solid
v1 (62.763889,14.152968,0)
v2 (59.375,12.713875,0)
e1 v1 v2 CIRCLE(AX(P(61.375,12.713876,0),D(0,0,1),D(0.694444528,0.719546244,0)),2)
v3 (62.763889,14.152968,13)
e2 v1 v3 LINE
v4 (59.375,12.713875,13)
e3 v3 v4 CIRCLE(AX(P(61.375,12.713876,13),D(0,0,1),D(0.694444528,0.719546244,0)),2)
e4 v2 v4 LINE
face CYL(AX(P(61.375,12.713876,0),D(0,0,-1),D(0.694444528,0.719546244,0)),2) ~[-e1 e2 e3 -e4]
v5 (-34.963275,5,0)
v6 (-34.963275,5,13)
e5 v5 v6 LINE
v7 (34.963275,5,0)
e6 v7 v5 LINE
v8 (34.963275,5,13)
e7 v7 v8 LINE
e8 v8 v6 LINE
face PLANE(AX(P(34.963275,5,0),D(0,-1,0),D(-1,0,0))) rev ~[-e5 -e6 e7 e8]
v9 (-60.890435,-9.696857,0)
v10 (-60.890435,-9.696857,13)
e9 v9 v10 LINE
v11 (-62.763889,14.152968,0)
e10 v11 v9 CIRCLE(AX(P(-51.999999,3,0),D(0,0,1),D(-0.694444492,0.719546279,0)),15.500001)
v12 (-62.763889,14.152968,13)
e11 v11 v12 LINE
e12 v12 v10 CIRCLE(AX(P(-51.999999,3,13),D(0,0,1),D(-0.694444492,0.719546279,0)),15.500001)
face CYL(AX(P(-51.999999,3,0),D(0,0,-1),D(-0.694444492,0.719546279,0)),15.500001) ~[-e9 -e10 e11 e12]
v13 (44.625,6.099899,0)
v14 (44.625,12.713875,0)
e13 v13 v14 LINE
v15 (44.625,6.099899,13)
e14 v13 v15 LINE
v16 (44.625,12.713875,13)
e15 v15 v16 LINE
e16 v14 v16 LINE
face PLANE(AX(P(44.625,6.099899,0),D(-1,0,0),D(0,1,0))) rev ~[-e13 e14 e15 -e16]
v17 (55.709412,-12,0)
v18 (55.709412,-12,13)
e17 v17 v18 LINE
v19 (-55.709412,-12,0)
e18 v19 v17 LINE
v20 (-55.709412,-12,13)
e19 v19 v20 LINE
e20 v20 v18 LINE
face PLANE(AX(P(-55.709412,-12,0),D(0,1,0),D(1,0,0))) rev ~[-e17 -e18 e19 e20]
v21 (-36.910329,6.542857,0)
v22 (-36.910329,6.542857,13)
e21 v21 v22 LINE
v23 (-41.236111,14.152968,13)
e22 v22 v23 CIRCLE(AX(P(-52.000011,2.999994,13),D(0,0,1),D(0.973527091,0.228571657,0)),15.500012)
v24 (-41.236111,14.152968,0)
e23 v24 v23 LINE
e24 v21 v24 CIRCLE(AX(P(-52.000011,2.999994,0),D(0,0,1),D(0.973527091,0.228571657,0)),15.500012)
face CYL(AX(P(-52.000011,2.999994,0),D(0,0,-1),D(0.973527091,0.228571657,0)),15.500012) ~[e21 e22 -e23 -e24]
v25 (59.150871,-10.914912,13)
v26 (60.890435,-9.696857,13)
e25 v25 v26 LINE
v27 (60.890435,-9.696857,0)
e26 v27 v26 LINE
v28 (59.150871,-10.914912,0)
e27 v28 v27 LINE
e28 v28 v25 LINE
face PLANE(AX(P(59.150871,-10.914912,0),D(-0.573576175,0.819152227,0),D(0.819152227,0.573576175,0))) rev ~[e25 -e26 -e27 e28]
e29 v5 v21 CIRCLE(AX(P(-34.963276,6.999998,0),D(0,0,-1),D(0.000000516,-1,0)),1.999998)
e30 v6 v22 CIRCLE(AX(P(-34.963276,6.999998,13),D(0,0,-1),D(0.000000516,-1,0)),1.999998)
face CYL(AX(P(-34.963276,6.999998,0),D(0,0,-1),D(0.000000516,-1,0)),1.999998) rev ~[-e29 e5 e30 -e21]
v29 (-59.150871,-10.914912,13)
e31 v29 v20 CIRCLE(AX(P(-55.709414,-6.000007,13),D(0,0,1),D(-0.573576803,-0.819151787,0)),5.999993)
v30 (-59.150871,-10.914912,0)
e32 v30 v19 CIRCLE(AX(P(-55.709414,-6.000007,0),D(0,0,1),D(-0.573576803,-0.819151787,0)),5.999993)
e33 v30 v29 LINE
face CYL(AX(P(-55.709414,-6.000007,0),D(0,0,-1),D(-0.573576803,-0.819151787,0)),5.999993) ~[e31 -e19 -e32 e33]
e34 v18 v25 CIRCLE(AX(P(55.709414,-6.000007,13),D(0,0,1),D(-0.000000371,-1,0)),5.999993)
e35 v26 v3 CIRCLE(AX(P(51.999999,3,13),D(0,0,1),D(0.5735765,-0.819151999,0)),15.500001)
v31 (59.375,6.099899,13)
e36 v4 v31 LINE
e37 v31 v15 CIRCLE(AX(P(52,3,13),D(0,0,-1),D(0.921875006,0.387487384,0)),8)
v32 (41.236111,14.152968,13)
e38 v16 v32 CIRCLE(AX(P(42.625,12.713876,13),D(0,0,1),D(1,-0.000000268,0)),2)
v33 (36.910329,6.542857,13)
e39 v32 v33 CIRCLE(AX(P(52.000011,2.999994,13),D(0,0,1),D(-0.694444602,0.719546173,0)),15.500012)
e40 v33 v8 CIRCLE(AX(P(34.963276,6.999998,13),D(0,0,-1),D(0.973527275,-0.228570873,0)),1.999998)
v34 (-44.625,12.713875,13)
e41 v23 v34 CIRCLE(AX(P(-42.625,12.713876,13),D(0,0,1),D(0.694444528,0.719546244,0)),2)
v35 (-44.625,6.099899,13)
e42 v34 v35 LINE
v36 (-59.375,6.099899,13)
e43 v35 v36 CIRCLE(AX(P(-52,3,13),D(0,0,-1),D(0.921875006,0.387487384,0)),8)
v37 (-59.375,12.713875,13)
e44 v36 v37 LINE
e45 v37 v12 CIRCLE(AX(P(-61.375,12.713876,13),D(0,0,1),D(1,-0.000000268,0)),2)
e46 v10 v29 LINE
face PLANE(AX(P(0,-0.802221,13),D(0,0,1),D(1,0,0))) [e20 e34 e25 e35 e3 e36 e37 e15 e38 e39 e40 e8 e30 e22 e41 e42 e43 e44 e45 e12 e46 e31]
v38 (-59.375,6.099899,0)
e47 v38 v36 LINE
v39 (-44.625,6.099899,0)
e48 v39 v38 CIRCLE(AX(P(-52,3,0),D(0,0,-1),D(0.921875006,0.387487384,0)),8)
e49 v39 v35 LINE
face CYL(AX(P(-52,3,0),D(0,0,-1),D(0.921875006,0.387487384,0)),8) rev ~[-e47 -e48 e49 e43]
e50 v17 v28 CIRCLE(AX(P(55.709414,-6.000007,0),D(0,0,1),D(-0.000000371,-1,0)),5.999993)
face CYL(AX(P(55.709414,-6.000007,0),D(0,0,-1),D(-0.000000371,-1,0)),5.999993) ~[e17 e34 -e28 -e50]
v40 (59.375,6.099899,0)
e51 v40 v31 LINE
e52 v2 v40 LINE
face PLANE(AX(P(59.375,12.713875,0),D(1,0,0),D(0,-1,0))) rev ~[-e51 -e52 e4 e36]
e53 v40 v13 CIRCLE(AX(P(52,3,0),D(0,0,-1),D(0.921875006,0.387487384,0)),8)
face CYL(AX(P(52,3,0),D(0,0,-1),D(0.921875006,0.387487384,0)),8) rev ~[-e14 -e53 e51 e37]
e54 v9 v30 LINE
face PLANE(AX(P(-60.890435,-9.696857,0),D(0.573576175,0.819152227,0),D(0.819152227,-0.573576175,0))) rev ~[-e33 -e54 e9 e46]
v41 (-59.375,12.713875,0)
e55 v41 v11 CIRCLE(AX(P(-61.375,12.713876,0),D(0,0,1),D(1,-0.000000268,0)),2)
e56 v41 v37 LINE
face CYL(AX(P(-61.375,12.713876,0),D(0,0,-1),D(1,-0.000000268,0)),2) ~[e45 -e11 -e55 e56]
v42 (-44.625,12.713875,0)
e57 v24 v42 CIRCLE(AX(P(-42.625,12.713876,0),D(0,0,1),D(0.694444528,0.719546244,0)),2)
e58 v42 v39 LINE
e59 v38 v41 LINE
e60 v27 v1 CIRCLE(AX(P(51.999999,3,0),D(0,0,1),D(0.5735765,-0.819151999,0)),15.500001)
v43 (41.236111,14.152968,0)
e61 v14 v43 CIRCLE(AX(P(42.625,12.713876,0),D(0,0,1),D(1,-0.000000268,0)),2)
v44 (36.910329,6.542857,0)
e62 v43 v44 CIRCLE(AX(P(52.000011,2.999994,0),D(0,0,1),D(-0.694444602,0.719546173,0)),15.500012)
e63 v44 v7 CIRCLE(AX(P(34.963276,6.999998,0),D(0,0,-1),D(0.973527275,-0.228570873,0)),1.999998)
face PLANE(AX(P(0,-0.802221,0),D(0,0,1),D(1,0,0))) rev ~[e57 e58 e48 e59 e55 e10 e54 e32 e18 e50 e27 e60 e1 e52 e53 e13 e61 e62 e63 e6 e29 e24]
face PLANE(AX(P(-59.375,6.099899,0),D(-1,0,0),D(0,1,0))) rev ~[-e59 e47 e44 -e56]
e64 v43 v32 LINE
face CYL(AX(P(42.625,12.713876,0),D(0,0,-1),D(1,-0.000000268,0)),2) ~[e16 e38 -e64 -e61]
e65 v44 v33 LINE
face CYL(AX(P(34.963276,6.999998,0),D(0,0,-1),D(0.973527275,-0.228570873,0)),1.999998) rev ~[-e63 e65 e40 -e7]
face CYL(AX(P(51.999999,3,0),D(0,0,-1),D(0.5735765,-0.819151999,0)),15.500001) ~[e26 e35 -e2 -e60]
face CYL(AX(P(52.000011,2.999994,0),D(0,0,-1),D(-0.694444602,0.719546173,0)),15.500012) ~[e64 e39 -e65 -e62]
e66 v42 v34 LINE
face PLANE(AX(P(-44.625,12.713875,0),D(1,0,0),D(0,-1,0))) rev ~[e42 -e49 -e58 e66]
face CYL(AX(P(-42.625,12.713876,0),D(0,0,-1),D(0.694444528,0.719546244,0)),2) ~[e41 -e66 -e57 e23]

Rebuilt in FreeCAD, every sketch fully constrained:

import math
import FreeCAD as App
import Part
import Sketcher
from FreeCAD import Vector
Q = App.Units.Quantity

doc = App.newDocument("Part")
body = doc.addObject("PartDesign::Body", "Body")

sketch1 = doc.addObject("Sketcher::SketchObject", "Sketch")
body.addObject(sketch1)
sketch1.AttachmentSupport = (doc.XY_Plane, [""])
sketch1.MapMode = "FlatFace"
sketch1.addGeometry(Part.ArcOfCircle(Part.Circle(Vector(-61.4, 12.7, 0), Vector(0, 0, 1), 2), math.radians(0), math.radians(134)), False)
sketch1.addGeometry(Part.ArcOfCircle(Part.Circle(Vector(-52, 3, 0), Vector(0, 0, 1), 15.5), math.radians(134), math.radians(235)), False)
sketch1.addGeometry(Part.LineSegment(Vector(-60.9, -9.7, 0), Vector(-59.2, -10.9, 0)), False)
sketch1.addGeometry(Part.ArcOfCircle(Part.Circle(Vector(-55.7, -6, 0), Vector(0, 0, 1), 6), math.radians(-125), math.radians(-90)), False)
sketch1.addGeometry(Part.LineSegment(Vector(-55.7, -12, 0), Vector(55.7, -12, 0)), False)
sketch1.addGeometry(Part.ArcOfCircle(Part.Circle(Vector(55.7, -6, 0), Vector(0, 0, 1), 6), math.radians(-90), math.radians(-55)), False)
sketch1.addGeometry(Part.LineSegment(Vector(59.2, -10.9, 0), Vector(60.9, -9.7, 0)), False)
sketch1.addGeometry(Part.ArcOfCircle(Part.Circle(Vector(52, 3, 0), Vector(0, 0, 1), 15.5), math.radians(-55), math.radians(46)), False)
sketch1.addGeometry(Part.ArcOfCircle(Part.Circle(Vector(61.4, 12.7, 0), Vector(0, 0, 1), 2), math.radians(46), math.radians(180)), False)
sketch1.addGeometry(Part.LineSegment(Vector(59.4, 12.7, 0), Vector(59.4, 6.1, 0)), False)
sketch1.addGeometry(Part.ArcOfCircle(Part.Circle(Vector(52, 3, 0), Vector(0, 0, 1), 8), math.radians(157), math.radians(383)), False)
sketch1.addGeometry(Part.LineSegment(Vector(44.6, 6.1, 0), Vector(44.6, 12.7, 0)), False)
sketch1.addGeometry(Part.ArcOfCircle(Part.Circle(Vector(42.6, 12.7, 0), Vector(0, 0, 1), 2), math.radians(0), math.radians(134)), False)
sketch1.addGeometry(Part.ArcOfCircle(Part.Circle(Vector(52, 3, 0), Vector(0, 0, 1), 15.5), math.radians(134), math.radians(167)), False)
sketch1.addGeometry(Part.ArcOfCircle(Part.Circle(Vector(35, 7, 0), Vector(0, 0, 1), 2), math.radians(-90), math.radians(-13)), False)
sketch1.addGeometry(Part.LineSegment(Vector(35, 5, 0), Vector(-35, 5, 0)), False)
sketch1.addGeometry(Part.ArcOfCircle(Part.Circle(Vector(-35, 7, 0), Vector(0, 0, 1), 2), math.radians(-167), math.radians(-90)), False)
sketch1.addGeometry(Part.ArcOfCircle(Part.Circle(Vector(-52, 3, 0), Vector(0, 0, 1), 15.5), math.radians(13), math.radians(46)), False)
sketch1.addGeometry(Part.ArcOfCircle(Part.Circle(Vector(-42.6, 12.7, 0), Vector(0, 0, 1), 2), math.radians(46), math.radians(180)), False)
sketch1.addGeometry(Part.LineSegment(Vector(-44.6, 12.7, 0), Vector(-44.6, 6.1, 0)), False)
sketch1.addGeometry(Part.ArcOfCircle(Part.Circle(Vector(-52, 3, 0), Vector(0, 0, 1), 8), math.radians(157), math.radians(383)), False)
sketch1.addGeometry(Part.LineSegment(Vector(-59.4, 6.1, 0), Vector(-59.4, 12.7, 0)), False)
sketch1.addConstraint(Sketcher.Constraint("Tangent", 0, 2, 1, 1))
sketch1.addConstraint(Sketcher.Constraint("Tangent", 1, 2, 2, 1))
sketch1.addConstraint(Sketcher.Constraint("Tangent", 2, 2, 3, 1))
sketch1.addConstraint(Sketcher.Constraint("Tangent", 3, 2, 4, 1))
sketch1.addConstraint(Sketcher.Constraint("Tangent", 4, 2, 5, 1))
sketch1.addConstraint(Sketcher.Constraint("Tangent", 5, 2, 6, 1))
sketch1.addConstraint(Sketcher.Constraint("Tangent", 6, 2, 7, 1))
sketch1.addConstraint(Sketcher.Constraint("Tangent", 7, 2, 8, 1))
sketch1.addConstraint(Sketcher.Constraint("Tangent", 8, 2, 9, 1))
sketch1.addConstraint(Sketcher.Constraint("Coincident", 9, 2, 10, 2))
sketch1.addConstraint(Sketcher.Constraint("Coincident", 10, 1, 11, 1))
sketch1.addConstraint(Sketcher.Constraint("Tangent", 11, 2, 12, 1))
sketch1.addConstraint(Sketcher.Constraint("Tangent", 12, 2, 13, 1))
sketch1.addConstraint(Sketcher.Constraint("Tangent", 13, 2, 14, 2))
sketch1.addConstraint(Sketcher.Constraint("Tangent", 14, 1, 15, 1))
sketch1.addConstraint(Sketcher.Constraint("Tangent", 15, 2, 16, 2))
sketch1.addConstraint(Sketcher.Constraint("Tangent", 16, 1, 17, 1))
sketch1.addConstraint(Sketcher.Constraint("Tangent", 17, 2, 18, 1))
sketch1.addConstraint(Sketcher.Constraint("Tangent", 18, 2, 19, 1))
sketch1.addConstraint(Sketcher.Constraint("Coincident", 19, 2, 20, 2))
sketch1.addConstraint(Sketcher.Constraint("Coincident", 20, 1, 21, 1))
sketch1.addConstraint(Sketcher.Constraint("Tangent", 21, 2, 0, 1))
sketch1.addConstraint(Sketcher.Constraint("Horizontal", 4))
sketch1.addConstraint(Sketcher.Constraint("Vertical", 9))
sketch1.addConstraint(Sketcher.Constraint("Vertical", 11))
sketch1.addConstraint(Sketcher.Constraint("Horizontal", 15))
sketch1.addConstraint(Sketcher.Constraint("Vertical", 19))
sketch1.addConstraint(Sketcher.Constraint("Vertical", 21))
sketch1.addConstraint(Sketcher.Constraint("Coincident", 10, 3, 7, 3))
sketch1.addConstraint(Sketcher.Constraint("Coincident", 20, 3, 1, 3))
sketch1.addConstraint(Sketcher.Constraint("Equal", 3, 5))
sketch1.addConstraint(Sketcher.Constraint("Equal", 1, 7))
sketch1.addConstraint(Sketcher.Constraint("Equal", 0, 8))
sketch1.addConstraint(Sketcher.Constraint("Equal", 8, 12))
sketch1.addConstraint(Sketcher.Constraint("Equal", 12, 14))
sketch1.addConstraint(Sketcher.Constraint("Equal", 14, 16))
sketch1.addConstraint(Sketcher.Constraint("Equal", 13, 17))
sketch1.addConstraint(Sketcher.Constraint("Equal", 16, 18))
sketch1.addConstraint(Sketcher.Constraint("Equal", 10, 20))
sketch1.addConstraint(Sketcher.Constraint("Symmetric", 1, 3, 7, 3, -2))
sketch1.addConstraint(Sketcher.Constraint("Symmetric", 13, 3, 17, 3, -2))
sketch1.addConstraint(Sketcher.Constraint("Horizontal", 0, 3, 8, 3))
sketch1.addConstraint(Sketcher.Constraint("Horizontal", 8, 3, 12, 3))
sketch1.addConstraint(Sketcher.Constraint("Horizontal", 12, 3, 18, 3))
sketch1.addConstraint(Sketcher.Constraint("Horizontal", 2, 2, 5, 2))
sketch1.addConstraint(Sketcher.Constraint("Horizontal", 9, 2, 10, 1))
sketch1.addConstraint(Sketcher.Constraint("Horizontal", 7, 2, 12, 2))
sketch1.addConstraint(Sketcher.Constraint("Radius", 0, Q("2 mm")))
sketch1.addConstraint(Sketcher.Constraint("Radius", 10, Q("8 mm")))
sketch1.addConstraint(Sketcher.Constraint("Radius", 1, Q("15.500001 mm")))
sketch1.addConstraint(Sketcher.Constraint("Angle", 2, Q("-34.999982 deg")))
sketch1.addConstraint(Sketcher.Constraint("DistanceX", 1, 3, -1, 1, Q("51.999999 mm")))
sketch1.addConstraint(Sketcher.Constraint("DistanceY", -1, 1, 1, 3, Q("3 mm")))
sketch1.addConstraint(Sketcher.Constraint("DistanceY", -1, 1, 14, 3, Q("6.999998 mm")))
sketch1.addConstraint(Sketcher.Constraint("DistanceY", 3, 2, -1, 1, Q("12 mm")))
sketch1.addConstraint(Sketcher.Constraint("DistanceY", 5, 3, 13, 3, Q("9.000001 mm")))
sketch1.addConstraint(Sketcher.Constraint("DistanceX", 0, 3, 8, 3, Q("122.75 mm")))
sketch1.addConstraint(Sketcher.Constraint("Radius", 3, Q("5.999993 mm")))
pad1 = doc.addObject("PartDesign::Pad", "Pad")
body.addObject(pad1)
pad1.Profile = sketch1
pad1.Length = 13

doc.recompute()
